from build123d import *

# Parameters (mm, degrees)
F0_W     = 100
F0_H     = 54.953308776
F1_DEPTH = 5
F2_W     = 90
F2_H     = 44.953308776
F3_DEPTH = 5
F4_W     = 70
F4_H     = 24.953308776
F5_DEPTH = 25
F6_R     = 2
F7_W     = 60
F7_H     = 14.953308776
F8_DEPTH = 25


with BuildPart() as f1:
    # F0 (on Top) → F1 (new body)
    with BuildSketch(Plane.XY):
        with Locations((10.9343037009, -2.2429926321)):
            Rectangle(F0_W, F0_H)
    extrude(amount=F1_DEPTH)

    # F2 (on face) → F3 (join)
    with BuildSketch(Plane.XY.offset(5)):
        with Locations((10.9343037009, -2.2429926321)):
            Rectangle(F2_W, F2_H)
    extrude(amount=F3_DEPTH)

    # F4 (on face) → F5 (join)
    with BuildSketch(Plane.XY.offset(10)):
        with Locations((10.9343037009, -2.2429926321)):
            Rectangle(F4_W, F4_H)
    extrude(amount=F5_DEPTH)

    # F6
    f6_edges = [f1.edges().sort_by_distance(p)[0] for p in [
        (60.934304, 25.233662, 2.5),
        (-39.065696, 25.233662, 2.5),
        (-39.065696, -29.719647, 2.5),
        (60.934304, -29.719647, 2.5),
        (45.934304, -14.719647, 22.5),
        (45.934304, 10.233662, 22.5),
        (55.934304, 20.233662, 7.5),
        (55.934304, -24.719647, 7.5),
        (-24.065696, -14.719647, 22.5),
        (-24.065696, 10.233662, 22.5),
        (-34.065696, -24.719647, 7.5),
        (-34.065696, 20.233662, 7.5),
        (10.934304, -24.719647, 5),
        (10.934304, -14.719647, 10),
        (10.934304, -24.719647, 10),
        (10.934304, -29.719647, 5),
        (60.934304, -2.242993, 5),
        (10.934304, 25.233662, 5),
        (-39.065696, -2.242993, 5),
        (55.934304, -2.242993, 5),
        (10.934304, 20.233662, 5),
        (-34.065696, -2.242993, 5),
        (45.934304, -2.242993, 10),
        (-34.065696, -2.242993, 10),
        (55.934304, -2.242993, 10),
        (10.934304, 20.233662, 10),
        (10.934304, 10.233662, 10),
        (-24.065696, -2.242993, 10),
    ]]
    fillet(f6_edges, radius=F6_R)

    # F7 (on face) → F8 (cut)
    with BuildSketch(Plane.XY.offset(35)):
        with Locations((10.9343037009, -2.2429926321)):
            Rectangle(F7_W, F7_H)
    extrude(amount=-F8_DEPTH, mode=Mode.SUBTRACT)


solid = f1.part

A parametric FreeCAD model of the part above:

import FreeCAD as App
import Part
import Sketcher

V = App.Vector
Q = App.Units.Quantity


def edges_at(feature, points):
    """Names of the edges that pass closest to the given points."""
    edges = feature.Shape.Edges
    near = lambda p: min(range(len(edges)), key=lambda i: edges[i].distToShape(Part.Vertex(*p))[0])
    return sorted({f"Edge{near(p) + 1}" for p in points})


def add_polygon(sketch, points):
    """Adds a closed chain of lines whose ends are joined by coincident constraints."""
    first, n = sketch.GeometryCount, len(points)
    for a, b in zip(points, points[1:] + points[:1]):
        sketch.addGeometry(Part.LineSegment(App.Vector(*a, 0), App.Vector(*b, 0)), False)
    for i in range(n):
        sketch.addConstraint(Sketcher.Constraint("Coincident", first + i, 2, first + (i + 1) % n, 1))

doc = App.newDocument("Part")
body = doc.addObject("PartDesign::Body", "Body")

# Sketch on XY plane
sketch1 = body.newObject("Sketcher::SketchObject", "Sketch")
sketch1.AttachmentSupport = (doc.getObject("XY_Plane"), [""])
sketch1.MapMode = "FlatFace"
add_polygon(sketch1, [(-39.065696, 25.233662), (-39.065696, -29.719647), (60.934304, -29.719647), (60.934304, 25.233662)])  # lines 0-3
sketch1.addConstraint(Sketcher.Constraint("Vertical", 0))
sketch1.addConstraint(Sketcher.Constraint("Horizontal", 1))
sketch1.addConstraint(Sketcher.Constraint("Vertical", 2))
sketch1.addConstraint(Sketcher.Constraint("Horizontal", 3))
sketch1.addConstraint(Sketcher.Constraint("DistanceX", 1, 1, 1, 2, Q("100 mm")))
sketch1.addConstraint(Sketcher.Constraint("DistanceY", 0, 2, 0, 1, Q("54.953309 mm")))
sketch1.addConstraint(Sketcher.Constraint("DistanceY", -1, 1, 2, 2, Q("25.233662 mm")))
sketch1.addConstraint(Sketcher.Constraint("DistanceX", 0, 2, -1, 1, Q("39.065696 mm")))
pad1 = body.newObject("PartDesign::Pad", "Pad")
pad1.Profile = sketch1
pad1.Length = 5

# Sketch on XY plane
sketch2 = body.newObject("Sketcher::SketchObject", "Sketch001")
sketch2.AttachmentSupport = (doc.getObject("XY_Plane"), [""])
sketch2.MapMode = "FlatFace"
sketch2.AttachmentOffset = App.Placement(V(0, 0, 5), App.Rotation())
add_polygon(sketch2, [(-34.065696, 20.233662), (-34.065696, -24.719647), (55.934304, -24.719647), (55.934304, 20.233662)])  # lines 0-3
sketch2.addConstraint(Sketcher.Constraint("Vertical", 0))
sketch2.addConstraint(Sketcher.Constraint("Horizontal", 1))
sketch2.addConstraint(Sketcher.Constraint("Vertical", 2))
sketch2.addConstraint(Sketcher.Constraint("Horizontal", 3))
sketch2.addConstraint(Sketcher.Constraint("DistanceX", 1, 1, 1, 2, Q("90 mm")))
sketch2.addConstraint(Sketcher.Constraint("DistanceY", 0, 2, 0, 1, Q("44.953309 mm")))
sketch2.addConstraint(Sketcher.Constraint("DistanceY", -1, 1, 2, 2, Q("20.233662 mm")))
sketch2.addConstraint(Sketcher.Constraint("DistanceX", 0, 2, -1, 1, Q("34.065696 mm")))
pad2 = body.newObject("PartDesign::Pad", "Pad001")
pad2.Profile = sketch2
pad2.Length = 5

# Sketch on XY plane
sketch3 = body.newObject("Sketcher::SketchObject", "Sketch002")
sketch3.AttachmentSupport = (doc.getObject("XY_Plane"), [""])
sketch3.MapMode = "FlatFace"
sketch3.AttachmentOffset = App.Placement(V(0, 0, 10), App.Rotation())
add_polygon(sketch3, [(-24.065696, 10.233662), (-24.065696, -14.719647), (45.934304, -14.719647), (45.934304, 10.233662)])  # lines 0-3
sketch3.addConstraint(Sketcher.Constraint("Vertical", 0))
sketch3.addConstraint(Sketcher.Constraint("Horizontal", 1))
sketch3.addConstraint(Sketcher.Constraint("Vertical", 2))
sketch3.addConstraint(Sketcher.Constraint("Horizontal", 3))
sketch3.addConstraint(Sketcher.Constraint("DistanceX", 1, 1, 1, 2, Q("70 mm")))
sketch3.addConstraint(Sketcher.Constraint("DistanceY", 0, 2, 0, 1, Q("24.953309 mm")))
sketch3.addConstraint(Sketcher.Constraint("DistanceY", -1, 1, 2, 2, Q("10.233662 mm")))
sketch3.addConstraint(Sketcher.Constraint("DistanceX", 0, 2, -1, 1, Q("24.065696 mm")))
pad3 = body.newObject("PartDesign::Pad", "Pad002")
pad3.Profile = sketch3
pad3.Length = 25
doc.recompute()

fillet = body.newObject("PartDesign::Fillet", "Fillet")
fillet.Base = (pad3, edges_at(pad3, [
    (60.934, 25.234, 2.5),
    (-39.066, 25.234, 2.5),
    (-39.066, -29.72, 2.5),
    (60.934, -29.72, 2.5),
    (45.934, -14.72, 22.5),
    (45.934, 10.234, 22.5),
    (55.934, 20.234, 7.5),
    (55.934, -24.72, 7.5),
    (-24.066, -14.72, 22.5),
    (-24.066, 10.234, 22.5),
    (-34.066, -24.72, 7.5),
    (-34.066, 20.234, 7.5),
    (10.934, -24.72, 5),
    (10.934, -14.72, 10),
    (10.934, -24.72, 10),
    (10.934, -29.72, 5),
    (60.934, -2.243, 5),
    (10.934, 25.234, 5),
    (-39.066, -2.243, 5),
    (55.934, -2.243, 5),
    (10.934, 20.234, 5),
    (-34.066, -2.243, 5),
    (45.934, -2.243, 10),
    (-34.066, -2.243, 10),
    (55.934, -2.243, 10),
    (10.934, 20.234, 10),
    (10.934, 10.234, 10),
    (-24.066, -2.243, 10),
]))
fillet.Radius = 2

# Sketch on XY plane
sketch4 = body.newObject("Sketcher::SketchObject", "Sketch003")
sketch4.AttachmentSupport = (doc.getObject("XY_Plane"), [""])
sketch4.MapMode = "FlatFace"
sketch4.AttachmentOffset = App.Placement(V(0, 0, 35), App.Rotation())
add_polygon(sketch4, [(-19.065696, 5.233662), (-19.065696, -9.719647), (40.934304, -9.719647), (40.934304, 5.233662)])  # lines 0-3
sketch4.addConstraint(Sketcher.Constraint("Vertical", 0))
sketch4.addConstraint(Sketcher.Constraint("Horizontal", 1))
sketch4.addConstraint(Sketcher.Constraint("Vertical", 2))
sketch4.addConstraint(Sketcher.Constraint("Horizontal", 3))
sketch4.addConstraint(Sketcher.Constraint("DistanceX", 1, 1, 1, 2, Q("60 mm")))
sketch4.addConstraint(Sketcher.Constraint("DistanceY", 0, 2, 0, 1, Q("14.953309 mm")))
sketch4.addConstraint(Sketcher.Constraint("DistanceY", -1, 1, 2, 2, Q("5.233662 mm")))
sketch4.addConstraint(Sketcher.Constraint("DistanceX", 0, 2, -1, 1, Q("19.065696 mm")))
pocket1 = body.newObject("PartDesign::Pocket", "Pocket")
pocket1.Profile = sketch4
pocket1.Length = 25

doc.recompute()
